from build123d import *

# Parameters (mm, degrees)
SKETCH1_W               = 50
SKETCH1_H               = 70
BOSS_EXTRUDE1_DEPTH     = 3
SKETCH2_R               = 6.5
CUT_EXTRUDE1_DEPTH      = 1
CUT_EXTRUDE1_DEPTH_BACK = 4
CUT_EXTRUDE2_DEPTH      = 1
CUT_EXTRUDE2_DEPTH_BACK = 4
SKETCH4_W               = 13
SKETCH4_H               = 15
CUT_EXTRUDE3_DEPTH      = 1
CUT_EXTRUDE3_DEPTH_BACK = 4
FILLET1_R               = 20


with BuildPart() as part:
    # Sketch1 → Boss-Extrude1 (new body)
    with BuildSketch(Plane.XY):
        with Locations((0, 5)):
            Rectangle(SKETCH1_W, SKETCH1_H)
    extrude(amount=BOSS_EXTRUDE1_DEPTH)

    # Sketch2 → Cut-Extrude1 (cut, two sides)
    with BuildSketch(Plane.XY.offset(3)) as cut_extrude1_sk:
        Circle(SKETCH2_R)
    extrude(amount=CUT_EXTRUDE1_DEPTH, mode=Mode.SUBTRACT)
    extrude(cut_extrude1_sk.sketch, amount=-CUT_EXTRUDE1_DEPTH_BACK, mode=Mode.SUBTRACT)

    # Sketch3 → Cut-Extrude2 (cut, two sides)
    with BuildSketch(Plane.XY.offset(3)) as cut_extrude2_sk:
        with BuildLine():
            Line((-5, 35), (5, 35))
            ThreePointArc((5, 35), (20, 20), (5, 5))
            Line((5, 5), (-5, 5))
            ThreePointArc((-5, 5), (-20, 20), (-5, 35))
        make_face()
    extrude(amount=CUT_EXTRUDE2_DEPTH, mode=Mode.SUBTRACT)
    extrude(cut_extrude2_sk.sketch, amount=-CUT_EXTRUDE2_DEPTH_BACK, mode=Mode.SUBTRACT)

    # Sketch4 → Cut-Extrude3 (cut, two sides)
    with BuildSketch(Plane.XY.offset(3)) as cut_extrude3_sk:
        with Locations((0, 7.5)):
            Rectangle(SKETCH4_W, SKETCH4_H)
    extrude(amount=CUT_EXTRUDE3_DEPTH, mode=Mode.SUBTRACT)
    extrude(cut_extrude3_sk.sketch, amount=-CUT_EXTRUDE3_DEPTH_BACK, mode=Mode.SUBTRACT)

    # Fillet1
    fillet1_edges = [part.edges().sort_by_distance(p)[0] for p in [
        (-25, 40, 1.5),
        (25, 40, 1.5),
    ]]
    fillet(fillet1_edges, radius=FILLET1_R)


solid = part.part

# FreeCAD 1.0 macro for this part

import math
import FreeCAD as App
import Part
import Sketcher

V = App.Vector


def edges_at(feature, points):
    """Names of the edges that pass closest to the given points."""
    edges = feature.Shape.Edges
    near = lambda p: min(range(len(edges)), key=lambda i: edges[i].distToShape(Part.Vertex(*p))[0])
    return sorted({f"Edge{near(p) + 1}" for p in points})


def add_polygon(sketch, points):
    """Adds a closed chain of lines whose ends are joined by coincident constraints."""
    first, n = sketch.GeometryCount, len(points)
    for a, b in zip(points, points[1:] + points[:1]):
        sketch.addGeometry(Part.LineSegment(App.Vector(*a, 0), App.Vector(*b, 0)), False)
    for i in range(n):
        sketch.addConstraint(Sketcher.Constraint("Coincident", first + i, 2, first + (i + 1) % n, 1))

doc = App.newDocument("Part")
body = doc.addObject("PartDesign::Body", "Body")

# Sketch on XY plane
sketch1 = body.newObject("Sketcher::SketchObject", "Sketch")
sketch1.AttachmentSupport = (doc.getObject("XY_Plane"), [""])
sketch1.MapMode = "FlatFace"
add_polygon(sketch1, [(-25, 40), (-25, -30), (25, -30), (25, 40)])  # lines 0-3
sketch1.addConstraint([
    Sketcher.Constraint("Vertical", 0),
    Sketcher.Constraint("Horizontal", 1),
    Sketcher.Constraint("Vertical", 2),
    Sketcher.Constraint("Horizontal", 3),
    Sketcher.Constraint("DistanceX", 1, 1, 1, 2, 50.0),
    Sketcher.Constraint("DistanceY", 0, 2, 0, 1, 70.0),
    Sketcher.Constraint("DistanceX", 0, 2, -1, 1, 25.0),
    Sketcher.Constraint("DistanceY", 0, 2, -1, 1, 30.0),
])
pad1 = body.newObject("PartDesign::Pad", "Pad")
pad1.Profile = sketch1
pad1.Length = 3

# Sketch on XY plane
sketch2 = body.newObject("Sketcher::SketchObject", "Sketch001")
sketch2.AttachmentSupport = (doc.getObject("XY_Plane"), [""])
sketch2.MapMode = "FlatFace"
sketch2.AttachmentOffset = App.Placement(V(0, 0, 3), App.Rotation())
sketch2.addGeometry(Part.Circle(V(0, 0, 0), V(0, 0, 1), 6), False)
sketch2.addConstraint([
    Sketcher.Constraint("Coincident", 0, 3, -1, 1),
    Sketcher.Constraint("Diameter", 0, 13.0),
])
pocket1 = body.newObject("PartDesign::Pocket", "Pocket")
pocket1.Profile = sketch2
pocket1.Type = "ThroughAll"
pocket1.Midplane = True

# Sketch on XY plane
sketch3 = body.newObject("Sketcher::SketchObject", "Sketch002")
sketch3.AttachmentSupport = (doc.getObject("XY_Plane"), [""])
sketch3.MapMode = "FlatFace"
sketch3.AttachmentOffset = App.Placement(V(0, 0, 3), App.Rotation())
sketch3.addGeometry([
    Part.LineSegment(V(5, 35, 0), V(-5, 35, 0)),
    Part.ArcOfCircle(Part.Circle(V(-5, 20, 0), V(0, 0, 1), 15), math.radians(90), math.radians(270)),
    Part.LineSegment(V(-5, 5, 0), V(5, 5, 0)),
    Part.ArcOfCircle(Part.Circle(V(5, 20, 0), V(0, 0, 1), 15), math.radians(-90), math.radians(90)),
], False)
sketch3.addConstraint([
    Sketcher.Constraint("Tangent", 0, 2, 1, 1),
    Sketcher.Constraint("Tangent", 1, 2, 2, 1),
    Sketcher.Constraint("Tangent", 2, 2, 3, 1),
    Sketcher.Constraint("Tangent", 3, 2, 0, 1),
    Sketcher.Constraint("Horizontal", 0),
    Sketcher.Constraint("Horizontal", 2),
    Sketcher.Constraint("Radius", 1, 15.0),
    Sketcher.Constraint("DistanceX", 0, 2, 0, 1, 10.0),
    Sketcher.Constraint("DistanceX", 1, 3, -1, 1, 5.0),
    Sketcher.Constraint("DistanceY", -1, 1, 1, 3, 20.0),
])
pocket2 = body.newObject("PartDesign::Pocket", "Pocket001")
pocket2.Profile = sketch3
pocket2.Type = "ThroughAll"
pocket2.Midplane = True

# Sketch on XY plane
sketch4 = body.newObject("Sketcher::SketchObject", "Sketch003")
sketch4.AttachmentSupport = (doc.getObject("XY_Plane"), [""])
sketch4.MapMode = "FlatFace"
sketch4.AttachmentOffset = App.Placement(V(0, 0, 3), App.Rotation())
add_polygon(sketch4, [(-6, 15), (-6, 0), (6, 0), (6, 15)])  # lines 0-3
sketch4.addConstraint([
    Sketcher.Constraint("Vertical", 0),
    Sketcher.Constraint("Horizontal", 1),
    Sketcher.Constraint("Vertical", 2),
    Sketcher.Constraint("Horizontal", 3),
    Sketcher.Constraint("Symmetric", 0, 2, 1, 2, -1, 1),
    Sketcher.Constraint("DistanceX", 1, 1, 1, 2, 13.0),
    Sketcher.Constraint("DistanceY", 0, 2, 0, 1, 15.0),
])
pocket3 = body.newObject("PartDesign::Pocket", "Pocket002")
pocket3.Profile = sketch4
pocket3.Type = "ThroughAll"
pocket3.Midplane = True
doc.recompute()

fillet = body.newObject("PartDesign::Fillet", "Fillet")
fillet.Base = (pocket3, edges_at(pocket3, [(-25, 40, 1.5), (25, 40, 1.5)]))
fillet.Radius = 20

doc.recompute()
